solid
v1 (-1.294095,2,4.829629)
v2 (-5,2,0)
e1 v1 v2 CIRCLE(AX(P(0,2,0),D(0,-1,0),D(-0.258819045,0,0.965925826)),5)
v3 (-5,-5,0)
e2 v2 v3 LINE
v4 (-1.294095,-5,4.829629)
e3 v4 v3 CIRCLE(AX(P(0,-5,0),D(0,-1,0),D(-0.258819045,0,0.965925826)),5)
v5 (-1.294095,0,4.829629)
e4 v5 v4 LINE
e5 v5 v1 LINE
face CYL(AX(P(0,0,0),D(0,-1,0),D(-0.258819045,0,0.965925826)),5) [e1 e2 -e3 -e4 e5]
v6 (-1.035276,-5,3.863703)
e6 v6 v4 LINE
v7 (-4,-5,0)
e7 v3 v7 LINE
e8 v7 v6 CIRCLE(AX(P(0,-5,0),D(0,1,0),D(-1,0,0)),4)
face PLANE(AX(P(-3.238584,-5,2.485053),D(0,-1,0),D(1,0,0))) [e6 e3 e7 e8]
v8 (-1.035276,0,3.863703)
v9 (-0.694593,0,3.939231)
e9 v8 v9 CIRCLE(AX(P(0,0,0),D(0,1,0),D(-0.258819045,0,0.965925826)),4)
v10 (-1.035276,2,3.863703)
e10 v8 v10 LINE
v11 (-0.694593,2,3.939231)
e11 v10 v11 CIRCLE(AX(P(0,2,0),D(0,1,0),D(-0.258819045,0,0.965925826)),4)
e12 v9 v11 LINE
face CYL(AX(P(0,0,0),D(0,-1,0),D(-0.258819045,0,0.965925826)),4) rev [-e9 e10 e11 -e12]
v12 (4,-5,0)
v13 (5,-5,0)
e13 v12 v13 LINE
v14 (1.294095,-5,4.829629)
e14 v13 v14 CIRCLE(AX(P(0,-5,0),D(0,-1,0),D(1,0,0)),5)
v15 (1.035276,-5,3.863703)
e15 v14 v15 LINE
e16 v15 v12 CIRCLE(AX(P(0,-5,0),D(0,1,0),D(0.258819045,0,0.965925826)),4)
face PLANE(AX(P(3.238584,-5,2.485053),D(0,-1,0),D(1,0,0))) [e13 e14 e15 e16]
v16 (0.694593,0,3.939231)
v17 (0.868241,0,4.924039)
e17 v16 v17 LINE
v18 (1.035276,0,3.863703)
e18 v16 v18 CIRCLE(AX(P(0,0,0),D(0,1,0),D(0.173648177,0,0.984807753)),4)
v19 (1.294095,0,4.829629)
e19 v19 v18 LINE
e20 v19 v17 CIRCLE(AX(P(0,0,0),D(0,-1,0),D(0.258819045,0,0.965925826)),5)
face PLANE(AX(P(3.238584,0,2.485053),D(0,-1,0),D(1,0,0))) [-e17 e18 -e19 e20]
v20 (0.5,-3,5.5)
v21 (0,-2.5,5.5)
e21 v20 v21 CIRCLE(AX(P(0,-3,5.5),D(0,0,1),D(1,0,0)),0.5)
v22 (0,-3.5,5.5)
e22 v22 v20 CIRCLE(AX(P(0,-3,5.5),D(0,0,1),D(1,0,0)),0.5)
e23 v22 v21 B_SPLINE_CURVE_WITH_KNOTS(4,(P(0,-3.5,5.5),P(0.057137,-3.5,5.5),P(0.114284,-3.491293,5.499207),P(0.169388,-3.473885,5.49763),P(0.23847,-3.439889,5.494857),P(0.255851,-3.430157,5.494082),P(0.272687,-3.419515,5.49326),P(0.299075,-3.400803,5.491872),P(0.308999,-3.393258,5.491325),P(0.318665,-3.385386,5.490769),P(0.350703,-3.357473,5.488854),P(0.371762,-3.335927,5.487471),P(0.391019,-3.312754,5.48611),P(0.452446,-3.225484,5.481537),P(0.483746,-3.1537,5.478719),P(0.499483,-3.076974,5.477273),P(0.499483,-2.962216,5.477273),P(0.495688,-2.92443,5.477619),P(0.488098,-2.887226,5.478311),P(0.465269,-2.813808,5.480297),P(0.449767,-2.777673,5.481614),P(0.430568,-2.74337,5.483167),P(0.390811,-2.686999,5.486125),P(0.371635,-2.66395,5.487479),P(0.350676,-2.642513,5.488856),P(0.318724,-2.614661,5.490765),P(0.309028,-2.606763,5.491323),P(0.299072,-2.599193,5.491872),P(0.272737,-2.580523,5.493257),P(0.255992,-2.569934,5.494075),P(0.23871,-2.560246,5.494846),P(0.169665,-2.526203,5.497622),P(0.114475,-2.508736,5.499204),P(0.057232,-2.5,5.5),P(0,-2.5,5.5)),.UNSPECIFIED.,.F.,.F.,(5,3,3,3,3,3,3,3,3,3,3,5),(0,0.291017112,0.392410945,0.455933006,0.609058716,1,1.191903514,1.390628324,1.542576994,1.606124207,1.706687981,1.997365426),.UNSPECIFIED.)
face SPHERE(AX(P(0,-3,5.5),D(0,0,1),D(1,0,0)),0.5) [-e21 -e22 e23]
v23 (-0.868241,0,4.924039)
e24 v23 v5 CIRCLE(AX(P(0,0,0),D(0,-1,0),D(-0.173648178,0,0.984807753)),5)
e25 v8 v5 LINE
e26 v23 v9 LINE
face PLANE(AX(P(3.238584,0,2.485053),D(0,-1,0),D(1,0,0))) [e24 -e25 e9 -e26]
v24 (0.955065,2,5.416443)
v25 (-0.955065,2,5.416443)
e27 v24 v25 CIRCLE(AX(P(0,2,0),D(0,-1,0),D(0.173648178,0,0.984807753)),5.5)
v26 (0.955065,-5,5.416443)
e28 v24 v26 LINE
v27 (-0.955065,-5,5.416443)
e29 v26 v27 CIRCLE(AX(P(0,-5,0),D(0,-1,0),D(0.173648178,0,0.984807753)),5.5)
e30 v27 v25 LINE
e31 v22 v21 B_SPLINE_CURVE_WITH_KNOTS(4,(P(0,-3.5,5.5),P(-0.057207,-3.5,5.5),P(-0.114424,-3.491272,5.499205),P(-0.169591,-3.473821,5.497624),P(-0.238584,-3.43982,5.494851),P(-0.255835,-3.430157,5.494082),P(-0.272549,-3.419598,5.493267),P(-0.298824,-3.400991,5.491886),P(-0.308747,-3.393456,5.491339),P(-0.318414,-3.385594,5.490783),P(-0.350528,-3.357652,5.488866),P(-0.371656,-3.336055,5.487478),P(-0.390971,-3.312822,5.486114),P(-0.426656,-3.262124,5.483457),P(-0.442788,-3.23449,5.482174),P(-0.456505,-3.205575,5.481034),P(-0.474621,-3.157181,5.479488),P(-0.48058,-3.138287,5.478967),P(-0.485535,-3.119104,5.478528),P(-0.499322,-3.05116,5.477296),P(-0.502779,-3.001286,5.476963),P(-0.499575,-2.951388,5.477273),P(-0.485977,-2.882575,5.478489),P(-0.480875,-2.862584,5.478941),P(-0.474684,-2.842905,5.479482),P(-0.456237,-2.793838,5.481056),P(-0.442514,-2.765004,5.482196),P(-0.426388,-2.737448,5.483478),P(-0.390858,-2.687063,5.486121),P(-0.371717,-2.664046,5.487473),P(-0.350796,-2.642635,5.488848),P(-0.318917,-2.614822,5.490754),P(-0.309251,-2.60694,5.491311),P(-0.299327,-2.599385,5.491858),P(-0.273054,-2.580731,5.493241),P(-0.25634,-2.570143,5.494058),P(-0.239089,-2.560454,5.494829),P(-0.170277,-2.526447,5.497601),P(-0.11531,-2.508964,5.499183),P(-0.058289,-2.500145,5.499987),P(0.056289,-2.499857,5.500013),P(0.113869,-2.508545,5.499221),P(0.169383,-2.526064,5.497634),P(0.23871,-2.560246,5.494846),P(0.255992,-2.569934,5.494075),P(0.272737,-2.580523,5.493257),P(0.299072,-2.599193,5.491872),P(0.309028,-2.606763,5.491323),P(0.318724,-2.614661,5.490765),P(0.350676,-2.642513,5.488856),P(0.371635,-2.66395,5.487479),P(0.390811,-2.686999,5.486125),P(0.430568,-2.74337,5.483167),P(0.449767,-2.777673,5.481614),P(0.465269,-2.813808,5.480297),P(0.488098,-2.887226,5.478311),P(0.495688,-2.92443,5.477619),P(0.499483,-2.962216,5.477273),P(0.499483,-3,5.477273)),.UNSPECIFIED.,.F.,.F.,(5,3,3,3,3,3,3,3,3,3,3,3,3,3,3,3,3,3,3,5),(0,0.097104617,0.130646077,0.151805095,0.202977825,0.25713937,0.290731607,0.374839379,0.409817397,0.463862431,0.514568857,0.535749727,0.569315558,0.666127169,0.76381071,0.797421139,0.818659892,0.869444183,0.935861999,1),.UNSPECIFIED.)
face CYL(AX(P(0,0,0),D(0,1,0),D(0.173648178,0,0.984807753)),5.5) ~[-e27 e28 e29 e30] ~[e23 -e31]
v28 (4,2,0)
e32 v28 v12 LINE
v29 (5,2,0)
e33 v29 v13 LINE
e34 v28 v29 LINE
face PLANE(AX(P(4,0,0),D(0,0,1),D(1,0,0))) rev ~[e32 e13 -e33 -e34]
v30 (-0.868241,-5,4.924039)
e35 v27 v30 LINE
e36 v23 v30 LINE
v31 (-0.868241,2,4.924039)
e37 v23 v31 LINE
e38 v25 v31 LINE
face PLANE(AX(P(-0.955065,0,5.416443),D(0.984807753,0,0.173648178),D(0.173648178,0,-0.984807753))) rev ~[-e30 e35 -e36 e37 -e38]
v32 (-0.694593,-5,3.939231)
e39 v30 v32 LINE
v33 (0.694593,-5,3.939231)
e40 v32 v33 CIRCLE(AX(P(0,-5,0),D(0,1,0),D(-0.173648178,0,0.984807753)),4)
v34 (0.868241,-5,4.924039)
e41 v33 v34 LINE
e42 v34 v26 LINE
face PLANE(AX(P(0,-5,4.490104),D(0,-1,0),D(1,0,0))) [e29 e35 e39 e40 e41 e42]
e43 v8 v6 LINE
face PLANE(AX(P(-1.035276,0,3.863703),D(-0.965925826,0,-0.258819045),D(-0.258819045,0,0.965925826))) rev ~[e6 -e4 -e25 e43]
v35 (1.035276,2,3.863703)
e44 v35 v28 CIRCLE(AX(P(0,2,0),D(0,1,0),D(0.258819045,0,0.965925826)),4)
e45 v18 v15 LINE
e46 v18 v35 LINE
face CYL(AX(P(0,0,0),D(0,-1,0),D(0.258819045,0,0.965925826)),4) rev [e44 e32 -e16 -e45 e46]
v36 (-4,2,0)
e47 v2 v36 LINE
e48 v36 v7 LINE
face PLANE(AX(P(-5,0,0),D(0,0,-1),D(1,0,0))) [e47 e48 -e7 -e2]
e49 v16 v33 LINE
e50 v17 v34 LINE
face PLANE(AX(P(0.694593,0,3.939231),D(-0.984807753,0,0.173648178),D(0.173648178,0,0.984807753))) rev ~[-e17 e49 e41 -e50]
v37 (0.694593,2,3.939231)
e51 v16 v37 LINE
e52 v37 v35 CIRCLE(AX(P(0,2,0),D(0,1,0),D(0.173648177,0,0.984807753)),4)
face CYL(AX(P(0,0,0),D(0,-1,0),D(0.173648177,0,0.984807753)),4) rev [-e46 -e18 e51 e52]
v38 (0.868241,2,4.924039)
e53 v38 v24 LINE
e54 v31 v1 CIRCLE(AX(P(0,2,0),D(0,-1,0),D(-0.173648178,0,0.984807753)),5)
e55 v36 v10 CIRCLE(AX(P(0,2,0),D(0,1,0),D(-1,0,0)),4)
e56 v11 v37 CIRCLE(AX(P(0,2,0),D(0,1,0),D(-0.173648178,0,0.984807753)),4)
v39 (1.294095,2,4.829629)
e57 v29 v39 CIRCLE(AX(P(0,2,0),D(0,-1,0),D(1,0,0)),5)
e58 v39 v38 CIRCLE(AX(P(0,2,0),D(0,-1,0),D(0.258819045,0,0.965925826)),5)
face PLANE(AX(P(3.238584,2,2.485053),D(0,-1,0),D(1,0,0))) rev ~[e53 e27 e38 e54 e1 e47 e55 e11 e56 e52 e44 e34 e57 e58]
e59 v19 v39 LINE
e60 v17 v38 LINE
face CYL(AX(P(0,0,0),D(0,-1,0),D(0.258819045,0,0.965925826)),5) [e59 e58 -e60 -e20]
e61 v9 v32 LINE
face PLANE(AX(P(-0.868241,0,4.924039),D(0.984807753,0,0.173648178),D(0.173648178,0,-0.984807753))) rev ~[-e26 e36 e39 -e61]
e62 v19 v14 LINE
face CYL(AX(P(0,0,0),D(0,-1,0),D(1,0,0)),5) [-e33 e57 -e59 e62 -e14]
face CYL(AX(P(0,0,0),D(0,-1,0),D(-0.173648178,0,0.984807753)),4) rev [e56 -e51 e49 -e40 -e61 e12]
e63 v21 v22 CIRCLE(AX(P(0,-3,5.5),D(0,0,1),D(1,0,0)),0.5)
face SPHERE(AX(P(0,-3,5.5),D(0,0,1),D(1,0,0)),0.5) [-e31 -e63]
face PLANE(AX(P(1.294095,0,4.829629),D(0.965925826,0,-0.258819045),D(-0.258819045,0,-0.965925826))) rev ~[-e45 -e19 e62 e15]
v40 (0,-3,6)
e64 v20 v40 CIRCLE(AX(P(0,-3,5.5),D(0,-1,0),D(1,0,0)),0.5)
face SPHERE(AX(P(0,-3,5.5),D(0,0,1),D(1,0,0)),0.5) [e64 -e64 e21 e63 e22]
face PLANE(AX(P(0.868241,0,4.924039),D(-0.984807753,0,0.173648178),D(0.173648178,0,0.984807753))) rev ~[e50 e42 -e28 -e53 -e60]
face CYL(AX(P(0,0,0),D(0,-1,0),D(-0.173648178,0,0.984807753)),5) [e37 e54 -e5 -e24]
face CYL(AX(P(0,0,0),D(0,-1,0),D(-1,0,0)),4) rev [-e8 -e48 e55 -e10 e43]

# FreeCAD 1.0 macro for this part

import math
import FreeCAD as App
import Part
import Sketcher
Q = App.Units.Quantity

doc = App.newDocument("Part")
body = doc.addObject("PartDesign::Body", "Body")

# Sketch on XZ plane
sketch1 = body.newObject("Sketcher::SketchObject", "Sketch")
sketch1.AttachmentSupport = (doc.getObject("XZ_Plane"), [""])
sketch1.MapMode = "FlatFace"
sketch1.addGeometry(Part.LineSegment(App.Vector(4, 0, 0), App.Vector(5, 0, 0)), False)
sketch1.addGeometry(Part.ArcOfCircle(Part.Circle(App.Vector(0, 0, 0), App.Vector(0, 0, 1), 5), math.radians(0), math.radians(75)), False)
sketch1.addGeometry(Part.ArcOfCircle(Part.Circle(App.Vector(0, 0, 0), App.Vector(0, 0, 1), 5), math.radians(75), math.radians(80)), False)
sketch1.addGeometry(Part.ArcOfCircle(Part.Circle(App.Vector(0, 0, 0), App.Vector(0, 0, 1), 5), math.radians(80), math.radians(100)), False)
sketch1.addGeometry(Part.ArcOfCircle(Part.Circle(App.Vector(0, 0, 0), App.Vector(0, 0, 1), 5), math.radians(100), math.radians(105)), False)
sketch1.addGeometry(Part.ArcOfCircle(Part.Circle(App.Vector(0, 0, 0), App.Vector(0, 0, 1), 5), math.radians(105), math.radians(180)), False)
sketch1.addGeometry(Part.LineSegment(App.Vector(-5, 0, 0), App.Vector(-4, 0, 0)), False)
sketch1.addGeometry(Part.ArcOfCircle(Part.Circle(App.Vector(0, 0, 0), App.Vector(0, 0, 1), 4), math.radians(105), math.radians(180)), False)
sketch1.addGeometry(Part.ArcOfCircle(Part.Circle(App.Vector(0, 0, 0), App.Vector(0, 0, 1), 4), math.radians(100), math.radians(105)), False)
sketch1.addGeometry(Part.ArcOfCircle(Part.Circle(App.Vector(0, 0, 0), App.Vector(0, 0, 1), 4), math.radians(80), math.radians(100)), False)
sketch1.addGeometry(Part.ArcOfCircle(Part.Circle(App.Vector(0, 0, 0), App.Vector(0, 0, 1), 4), math.radians(75), math.radians(80)), False)
sketch1.addGeometry(Part.ArcOfCircle(Part.Circle(App.Vector(0, 0, 0), App.Vector(0, 0, 1), 4), math.radians(0), math.radians(75)), False)
sketch1.addConstraint(Sketcher.Constraint("Coincident", 0, 2, 1, 1))
sketch1.addConstraint(Sketcher.Constraint("Tangent", 1, 2, 2, 1))
sketch1.addConstraint(Sketcher.Constraint("Tangent", 2, 2, 3, 1))
sketch1.addConstraint(Sketcher.Constraint("Tangent", 3, 2, 4, 1))
sketch1.addConstraint(Sketcher.Constraint("Tangent", 4, 2, 5, 1))
sketch1.addConstraint(Sketcher.Constraint("Coincident", 5, 2, 6, 1))
sketch1.addConstraint(Sketcher.Constraint("Coincident", 6, 2, 7, 2))
sketch1.addConstraint(Sketcher.Constraint("Tangent", 7, 1, 8, 2))
sketch1.addConstraint(Sketcher.Constraint("Tangent", 8, 1, 9, 2))
sketch1.addConstraint(Sketcher.Constraint("Tangent", 9, 1, 10, 2))
sketch1.addConstraint(Sketcher.Constraint("Tangent", 10, 1, 11, 2))
sketch1.addConstraint(Sketcher.Constraint("Coincident", 11, 1, 0, 1))
sketch1.addConstraint(Sketcher.Constraint("Horizontal", 0))
sketch1.addConstraint(Sketcher.Constraint("Horizontal", 6))
sketch1.addConstraint(Sketcher.Constraint("Coincident", 1, 3, -1, 1))
sketch1.addConstraint(Sketcher.Constraint("Coincident", 3, 3, -1, 1))
sketch1.addConstraint(Sketcher.Constraint("Coincident", 5, 3, -1, 1))
sketch1.addConstraint(Sketcher.Constraint("Coincident", 7, 3, -1, 1))
sketch1.addConstraint(Sketcher.Constraint("Coincident", 9, 3, -1, 1))
sketch1.addConstraint(Sketcher.Constraint("Coincident", 11, 3, -1, 1))
sketch1.addConstraint(Sketcher.Constraint("PointOnObject", 0, 2, -1))
sketch1.addConstraint(Sketcher.Constraint("PointOnObject", 5, 2, -1))
sketch1.addConstraint(Sketcher.Constraint("Horizontal", 2, 2, 3, 2))
sketch1.addConstraint(Sketcher.Constraint("Horizontal", 1, 2, 4, 2))
sketch1.addConstraint(Sketcher.Constraint("Horizontal", 8, 1, 9, 1))
sketch1.addConstraint(Sketcher.Constraint("Horizontal", 7, 1, 10, 1))
sketch1.addConstraint(Sketcher.Constraint("Radius", 1, Q("5 mm")))
sketch1.addConstraint(Sketcher.Constraint("Radius", 7, Q("4 mm")))
sketch1.addConstraint(Sketcher.Constraint("DistanceY", 8, 1, 4, 2, Q("0.890398 mm")))
sketch1.addConstraint(Sketcher.Constraint("DistanceY", -1, 1, 1, 2, Q("4.829629 mm")))
sketch1.addConstraint(Sketcher.Constraint("DistanceX", -1, 1, 2, 2, Q("0.868241 mm")))
sketch1.addConstraint(Sketcher.Constraint("DistanceX", 4, 2, 7, 1, Q("0.258819 mm")))
pad1 = body.newObject("PartDesign::Pad", "Pad")
pad1.Profile = sketch1
pad1.Length = 2
pad1.Reversed = True

# Sketch on XZ plane
sketch2 = body.newObject("Sketcher::SketchObject", "Sketch001")
sketch2.AttachmentSupport = (doc.getObject("XZ_Plane"), [""])
sketch2.MapMode = "FlatFace"
sketch2.addGeometry(Part.LineSegment(App.Vector(0.7, 3.9, 0), App.Vector(0.9, 4.9, 0)), False)
sketch2.addGeometry(Part.LineSegment(App.Vector(0.9, 4.9, 0), App.Vector(1, 5.4, 0)), False)
sketch2.addGeometry(Part.ArcOfCircle(Part.Circle(App.Vector(0, 0, 0), App.Vector(0, 0, 1), 5.5), math.radians(80), math.radians(100)), False)
sketch2.addGeometry(Part.LineSegment(App.Vector(-1, 5.4, 0), App.Vector(-0.9, 4.9, 0)), False)
sketch2.addGeometry(Part.LineSegment(App.Vector(-0.9, 4.9, 0), App.Vector(-0.7, 3.9, 0)), False)
sketch2.addGeometry(Part.ArcOfCircle(Part.Circle(App.Vector(0, 0, 0), App.Vector(0, 0, 1), 4), math.radians(80), math.radians(100)), False)
sketch2.addConstraint(Sketcher.Constraint("Coincident", 0, 2, 1, 1))
sketch2.addConstraint(Sketcher.Constraint("Coincident", 1, 2, 2, 1))
sketch2.addConstraint(Sketcher.Constraint("Coincident", 2, 2, 3, 1))
sketch2.addConstraint(Sketcher.Constraint("Coincident", 3, 2, 4, 1))
sketch2.addConstraint(Sketcher.Constraint("Coincident", 4, 2, 5, 2))
sketch2.addConstraint(Sketcher.Constraint("Coincident", 5, 1, 0, 1))
sketch2.addConstraint(Sketcher.Constraint("Coincident", 2, 3, -1, 1))
sketch2.addConstraint(Sketcher.Constraint("Coincident", 5, 3, -1, 1))
sketch2.addConstraint(Sketcher.Constraint("Symmetric", 0, 2, 3, 2, -2))
sketch2.addConstraint(Sketcher.Constraint("Parallel", 0, 1))
sketch2.addConstraint(Sketcher.Constraint("Parallel", 3, 4))
sketch2.addConstraint(Sketcher.Constraint("Horizontal", 1, 2, 2, 2))
sketch2.addConstraint(Sketcher.Constraint("Radius", 5, Q("4 mm")))
sketch2.addConstraint(Sketcher.Constraint("Radius", 2, Q("5.5 mm")))
sketch2.addConstraint(Sketcher.Constraint("Angle", 0, Q("80 deg")))
sketch2.addConstraint(Sketcher.Constraint("Distance", 0, Q("1 mm")))
sketch2.addConstraint(Sketcher.Constraint("DistanceX", -1, 1, 0, 2, Q("0.868241 mm")))
pad2 = body.newObject("PartDesign::Pad", "Pad001")
pad2.Profile = sketch2
pad2.Type = "TwoLengths"
pad2.Length = 5
pad2.Length2 = 2

# Sketch on XZ plane
sketch3 = body.newObject("Sketcher::SketchObject", "Sketch002")
sketch3.AttachmentSupport = (doc.getObject("XZ_Plane"), [""])
sketch3.MapMode = "FlatFace"
sketch3.addGeometry(Part.LineSegment(App.Vector(4, 0, 0), App.Vector(5, 0, 0)), False)
sketch3.addGeometry(Part.ArcOfCircle(Part.Circle(App.Vector(0, 0, 0), App.Vector(0, 0, 1), 5), math.radians(0), math.radians(75)), False)
sketch3.addGeometry(Part.LineSegment(App.Vector(1.3, 4.8, 0), App.Vector(1, 3.9, 0)), False)
sketch3.addGeometry(Part.ArcOfCircle(Part.Circle(App.Vector(0, 0, 0), App.Vector(0, 0, 1), 4), math.radians(0), math.radians(75)), False)
sketch3.addGeometry(Part.ArcOfCircle(Part.Circle(App.Vector(0, 0, 0), App.Vector(0, 0, 1), 5), math.radians(105), math.radians(180)), False)
sketch3.addGeometry(Part.LineSegment(App.Vector(-5, 0, 0), App.Vector(-4, 0, 0)), False)
sketch3.addGeometry(Part.ArcOfCircle(Part.Circle(App.Vector(0, 0, 0), App.Vector(0, 0, 1), 4), math.radians(105), math.radians(180)), False)
sketch3.addGeometry(Part.LineSegment(App.Vector(-1, 3.9, 0), App.Vector(-1.3, 4.8, 0)), False)
sketch3.addConstraint(Sketcher.Constraint("Coincident", 0, 2, 1, 1))
sketch3.addConstraint(Sketcher.Constraint("Coincident", 1, 2, 2, 1))
sketch3.addConstraint(Sketcher.Constraint("Coincident", 2, 2, 3, 2))
sketch3.addConstraint(Sketcher.Constraint("Coincident", 3, 1, 0, 1))
sketch3.addConstraint(Sketcher.Constraint("Coincident", 4, 2, 5, 1))
sketch3.addConstraint(Sketcher.Constraint("Coincident", 5, 2, 6, 2))
sketch3.addConstraint(Sketcher.Constraint("Coincident", 6, 1, 7, 1))
sketch3.addConstraint(Sketcher.Constraint("Coincident", 7, 2, 4, 1))
sketch3.addConstraint(Sketcher.Constraint("Horizontal", 0))
sketch3.addConstraint(Sketcher.Constraint("Horizontal", 5))
sketch3.addConstraint(Sketcher.Constraint("Coincident", 1, 3, -1, 1))
sketch3.addConstraint(Sketcher.Constraint("Coincident", 3, 3, -1, 1))
sketch3.addConstraint(Sketcher.Constraint("Coincident", 4, 3, -1, 1))
sketch3.addConstraint(Sketcher.Constraint("Coincident", 6, 3, -1, 1))
sketch3.addConstraint(Sketcher.Constraint("Equal", 1, 4))
sketch3.addConstraint(Sketcher.Constraint("Equal", 3, 6))
sketch3.addConstraint(Sketcher.Constraint("PointOnObject", 0, 2, -1))
sketch3.addConstraint(Sketcher.Constraint("PointOnObject", 4, 2, -1))
sketch3.addConstraint(Sketcher.Constraint("Horizontal", 2, 2, 6, 1))
sketch3.addConstraint(Sketcher.Constraint("Horizontal", 1, 2, 7, 2))
sketch3.addConstraint(Sketcher.Constraint("Radius", 1, Q("5 mm")))
sketch3.addConstraint(Sketcher.Constraint("Radius", 3, Q("4 mm")))
sketch3.addConstraint(Sketcher.Constraint("Angle", 2, Q("-105 deg")))
sketch3.addConstraint(Sketcher.Constraint("DistanceY", -1, 1, 1, 2, Q("4.829629 mm")))
pad3 = body.newObject("PartDesign::Pad", "Pad002")
pad3.Profile = sketch3
pad3.Length = 5

# Sketch on XZ plane
sketch4 = body.newObject("Sketcher::SketchObject", "Sketch003")
sketch4.AttachmentSupport = (doc.getObject("XZ_Plane"), [""])
sketch4.MapMode = "FlatFace"
sketch4.AttachmentOffset = App.Placement(App.Vector(0, 0, 3), App.Rotation())
sketch4.addGeometry(Part.LineSegment(App.Vector(0, 6, 0), App.Vector(0, 5, 0)), False)
sketch4.addGeometry(Part.ArcOfCircle(Part.Circle(App.Vector(0, 5.5, 0), App.Vector(0, 0, 1), 0.5), math.radians(-90), math.radians(0)), False)
sketch4.addGeometry(Part.ArcOfCircle(Part.Circle(App.Vector(0, 5.5, 0), App.Vector(0, 0, 1), 0.5), math.radians(0), math.radians(90)), False)
sketch4.addConstraint(Sketcher.Constraint("Coincident", 0, 2, 1, 1))
sketch4.addConstraint(Sketcher.Constraint("Tangent", 1, 2, 2, 1))
sketch4.addConstraint(Sketcher.Constraint("Coincident", 2, 2, 0, 1))
sketch4.addConstraint(Sketcher.Constraint("Vertical", 0))
sketch4.addConstraint(Sketcher.Constraint("Equal", 1, 2))
sketch4.addConstraint(Sketcher.Constraint("PointOnObject", 1, 3, -2))
sketch4.addConstraint(Sketcher.Constraint("PointOnObject", 0, 2, -2))
sketch4.addConstraint(Sketcher.Constraint("Horizontal", 2, 3, 1, 2))
sketch4.addConstraint(Sketcher.Constraint("Radius", 1, Q("0.5 mm")))
sketch4.addConstraint(Sketcher.Constraint("DistanceY", -1, 1, 0, 2, Q("5 mm")))
revolution = body.newObject("PartDesign::Revolution", "Revolution")
revolution.Profile = sketch4
revolution.ReferenceAxis = (sketch4, ["V_Axis"])
revolution.Angle = 360

doc.recompute()
